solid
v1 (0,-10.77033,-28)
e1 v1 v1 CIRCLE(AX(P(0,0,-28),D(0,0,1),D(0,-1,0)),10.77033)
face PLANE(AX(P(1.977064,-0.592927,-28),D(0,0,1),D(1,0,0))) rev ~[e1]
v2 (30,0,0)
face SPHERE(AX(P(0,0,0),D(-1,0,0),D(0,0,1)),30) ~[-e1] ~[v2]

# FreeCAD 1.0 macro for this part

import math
import FreeCAD as App
import Part
import Sketcher

V = App.Vector


def add_polygon(sketch, points):
    """Adds a closed chain of lines whose ends are joined by coincident constraints."""
    first, n = sketch.GeometryCount, len(points)
    for a, b in zip(points, points[1:] + points[:1]):
        sketch.addGeometry(Part.LineSegment(App.Vector(*a, 0), App.Vector(*b, 0)), False)
    for i in range(n):
        sketch.addConstraint(Sketcher.Constraint("Coincident", first + i, 2, first + (i + 1) % n, 1))

doc = App.newDocument("Part")
body = doc.addObject("PartDesign::Body", "Body")

# Sketch on XZ plane
sketch1 = body.newObject("Sketcher::SketchObject", "Sketch")
sketch1.AttachmentSupport = (doc.getObject("XZ_Plane"), [""])
sketch1.MapMode = "FlatFace"
sketch1.addGeometry(Part.LineSegment(V(-30, 0, 0), V(30, 0, 0)), False)
sketch1.addGeometry(Part.ArcOfCircle(Part.Circle(V(0, 0, 0), V(0, 0, 1), 30), math.radians(0), math.radians(180)), False)
sketch1.addConstraint(Sketcher.Constraint("Coincident", 0, 1, 1, 2))
sketch1.addConstraint(Sketcher.Constraint("Coincident", 1, 1, 0, 2))
sketch1.addConstraint(Sketcher.Constraint("Horizontal", 0))
sketch1.addConstraint(Sketcher.Constraint("Coincident", 1, 3, -1, 1))
sketch1.addConstraint(Sketcher.Constraint("PointOnObject", 0, 1, -1))
sketch1.addConstraint(Sketcher.Constraint("Radius", 1, 30.0))
revolution = body.newObject("PartDesign::Revolution", "Revolution")
revolution.Profile = sketch1
revolution.ReferenceAxis = (sketch1, ["H_Axis"])
revolution.Angle = 360

# Sketch on XY plane
sketch2 = body.newObject("Sketcher::SketchObject", "Sketch001")
sketch2.AttachmentSupport = (doc.getObject("XY_Plane"), [""])
sketch2.MapMode = "FlatFace"
sketch2.AttachmentOffset = App.Placement(V(0, 0, -28), App.Rotation())
add_polygon(sketch2, [(-28.022936, 29.407073), (-28.022936, -30.592927), (31.977064, -30.592927), (31.977064, 29.407073)])  # lines 0-3
sketch2.addConstraint(Sketcher.Constraint("Vertical", 0))
sketch2.addConstraint(Sketcher.Constraint("Horizontal", 1))
sketch2.addConstraint(Sketcher.Constraint("Vertical", 2))
sketch2.addConstraint(Sketcher.Constraint("Horizontal", 3))
sketch2.addConstraint(Sketcher.Constraint("Equal", 3, 0))
sketch2.addConstraint(Sketcher.Constraint("DistanceX", 1, 1, 1, 2, 60.0))
sketch2.addConstraint(Sketcher.Constraint("DistanceX", 0, 2, -1, 1, 28.022936))
sketch2.addConstraint(Sketcher.Constraint("DistanceY", 0, 2, -1, 1, 30.592927))
pocket1 = body.newObject("PartDesign::Pocket", "Pocket")
pocket1.Profile = sketch2
pocket1.Length = 72

doc.recompute()
